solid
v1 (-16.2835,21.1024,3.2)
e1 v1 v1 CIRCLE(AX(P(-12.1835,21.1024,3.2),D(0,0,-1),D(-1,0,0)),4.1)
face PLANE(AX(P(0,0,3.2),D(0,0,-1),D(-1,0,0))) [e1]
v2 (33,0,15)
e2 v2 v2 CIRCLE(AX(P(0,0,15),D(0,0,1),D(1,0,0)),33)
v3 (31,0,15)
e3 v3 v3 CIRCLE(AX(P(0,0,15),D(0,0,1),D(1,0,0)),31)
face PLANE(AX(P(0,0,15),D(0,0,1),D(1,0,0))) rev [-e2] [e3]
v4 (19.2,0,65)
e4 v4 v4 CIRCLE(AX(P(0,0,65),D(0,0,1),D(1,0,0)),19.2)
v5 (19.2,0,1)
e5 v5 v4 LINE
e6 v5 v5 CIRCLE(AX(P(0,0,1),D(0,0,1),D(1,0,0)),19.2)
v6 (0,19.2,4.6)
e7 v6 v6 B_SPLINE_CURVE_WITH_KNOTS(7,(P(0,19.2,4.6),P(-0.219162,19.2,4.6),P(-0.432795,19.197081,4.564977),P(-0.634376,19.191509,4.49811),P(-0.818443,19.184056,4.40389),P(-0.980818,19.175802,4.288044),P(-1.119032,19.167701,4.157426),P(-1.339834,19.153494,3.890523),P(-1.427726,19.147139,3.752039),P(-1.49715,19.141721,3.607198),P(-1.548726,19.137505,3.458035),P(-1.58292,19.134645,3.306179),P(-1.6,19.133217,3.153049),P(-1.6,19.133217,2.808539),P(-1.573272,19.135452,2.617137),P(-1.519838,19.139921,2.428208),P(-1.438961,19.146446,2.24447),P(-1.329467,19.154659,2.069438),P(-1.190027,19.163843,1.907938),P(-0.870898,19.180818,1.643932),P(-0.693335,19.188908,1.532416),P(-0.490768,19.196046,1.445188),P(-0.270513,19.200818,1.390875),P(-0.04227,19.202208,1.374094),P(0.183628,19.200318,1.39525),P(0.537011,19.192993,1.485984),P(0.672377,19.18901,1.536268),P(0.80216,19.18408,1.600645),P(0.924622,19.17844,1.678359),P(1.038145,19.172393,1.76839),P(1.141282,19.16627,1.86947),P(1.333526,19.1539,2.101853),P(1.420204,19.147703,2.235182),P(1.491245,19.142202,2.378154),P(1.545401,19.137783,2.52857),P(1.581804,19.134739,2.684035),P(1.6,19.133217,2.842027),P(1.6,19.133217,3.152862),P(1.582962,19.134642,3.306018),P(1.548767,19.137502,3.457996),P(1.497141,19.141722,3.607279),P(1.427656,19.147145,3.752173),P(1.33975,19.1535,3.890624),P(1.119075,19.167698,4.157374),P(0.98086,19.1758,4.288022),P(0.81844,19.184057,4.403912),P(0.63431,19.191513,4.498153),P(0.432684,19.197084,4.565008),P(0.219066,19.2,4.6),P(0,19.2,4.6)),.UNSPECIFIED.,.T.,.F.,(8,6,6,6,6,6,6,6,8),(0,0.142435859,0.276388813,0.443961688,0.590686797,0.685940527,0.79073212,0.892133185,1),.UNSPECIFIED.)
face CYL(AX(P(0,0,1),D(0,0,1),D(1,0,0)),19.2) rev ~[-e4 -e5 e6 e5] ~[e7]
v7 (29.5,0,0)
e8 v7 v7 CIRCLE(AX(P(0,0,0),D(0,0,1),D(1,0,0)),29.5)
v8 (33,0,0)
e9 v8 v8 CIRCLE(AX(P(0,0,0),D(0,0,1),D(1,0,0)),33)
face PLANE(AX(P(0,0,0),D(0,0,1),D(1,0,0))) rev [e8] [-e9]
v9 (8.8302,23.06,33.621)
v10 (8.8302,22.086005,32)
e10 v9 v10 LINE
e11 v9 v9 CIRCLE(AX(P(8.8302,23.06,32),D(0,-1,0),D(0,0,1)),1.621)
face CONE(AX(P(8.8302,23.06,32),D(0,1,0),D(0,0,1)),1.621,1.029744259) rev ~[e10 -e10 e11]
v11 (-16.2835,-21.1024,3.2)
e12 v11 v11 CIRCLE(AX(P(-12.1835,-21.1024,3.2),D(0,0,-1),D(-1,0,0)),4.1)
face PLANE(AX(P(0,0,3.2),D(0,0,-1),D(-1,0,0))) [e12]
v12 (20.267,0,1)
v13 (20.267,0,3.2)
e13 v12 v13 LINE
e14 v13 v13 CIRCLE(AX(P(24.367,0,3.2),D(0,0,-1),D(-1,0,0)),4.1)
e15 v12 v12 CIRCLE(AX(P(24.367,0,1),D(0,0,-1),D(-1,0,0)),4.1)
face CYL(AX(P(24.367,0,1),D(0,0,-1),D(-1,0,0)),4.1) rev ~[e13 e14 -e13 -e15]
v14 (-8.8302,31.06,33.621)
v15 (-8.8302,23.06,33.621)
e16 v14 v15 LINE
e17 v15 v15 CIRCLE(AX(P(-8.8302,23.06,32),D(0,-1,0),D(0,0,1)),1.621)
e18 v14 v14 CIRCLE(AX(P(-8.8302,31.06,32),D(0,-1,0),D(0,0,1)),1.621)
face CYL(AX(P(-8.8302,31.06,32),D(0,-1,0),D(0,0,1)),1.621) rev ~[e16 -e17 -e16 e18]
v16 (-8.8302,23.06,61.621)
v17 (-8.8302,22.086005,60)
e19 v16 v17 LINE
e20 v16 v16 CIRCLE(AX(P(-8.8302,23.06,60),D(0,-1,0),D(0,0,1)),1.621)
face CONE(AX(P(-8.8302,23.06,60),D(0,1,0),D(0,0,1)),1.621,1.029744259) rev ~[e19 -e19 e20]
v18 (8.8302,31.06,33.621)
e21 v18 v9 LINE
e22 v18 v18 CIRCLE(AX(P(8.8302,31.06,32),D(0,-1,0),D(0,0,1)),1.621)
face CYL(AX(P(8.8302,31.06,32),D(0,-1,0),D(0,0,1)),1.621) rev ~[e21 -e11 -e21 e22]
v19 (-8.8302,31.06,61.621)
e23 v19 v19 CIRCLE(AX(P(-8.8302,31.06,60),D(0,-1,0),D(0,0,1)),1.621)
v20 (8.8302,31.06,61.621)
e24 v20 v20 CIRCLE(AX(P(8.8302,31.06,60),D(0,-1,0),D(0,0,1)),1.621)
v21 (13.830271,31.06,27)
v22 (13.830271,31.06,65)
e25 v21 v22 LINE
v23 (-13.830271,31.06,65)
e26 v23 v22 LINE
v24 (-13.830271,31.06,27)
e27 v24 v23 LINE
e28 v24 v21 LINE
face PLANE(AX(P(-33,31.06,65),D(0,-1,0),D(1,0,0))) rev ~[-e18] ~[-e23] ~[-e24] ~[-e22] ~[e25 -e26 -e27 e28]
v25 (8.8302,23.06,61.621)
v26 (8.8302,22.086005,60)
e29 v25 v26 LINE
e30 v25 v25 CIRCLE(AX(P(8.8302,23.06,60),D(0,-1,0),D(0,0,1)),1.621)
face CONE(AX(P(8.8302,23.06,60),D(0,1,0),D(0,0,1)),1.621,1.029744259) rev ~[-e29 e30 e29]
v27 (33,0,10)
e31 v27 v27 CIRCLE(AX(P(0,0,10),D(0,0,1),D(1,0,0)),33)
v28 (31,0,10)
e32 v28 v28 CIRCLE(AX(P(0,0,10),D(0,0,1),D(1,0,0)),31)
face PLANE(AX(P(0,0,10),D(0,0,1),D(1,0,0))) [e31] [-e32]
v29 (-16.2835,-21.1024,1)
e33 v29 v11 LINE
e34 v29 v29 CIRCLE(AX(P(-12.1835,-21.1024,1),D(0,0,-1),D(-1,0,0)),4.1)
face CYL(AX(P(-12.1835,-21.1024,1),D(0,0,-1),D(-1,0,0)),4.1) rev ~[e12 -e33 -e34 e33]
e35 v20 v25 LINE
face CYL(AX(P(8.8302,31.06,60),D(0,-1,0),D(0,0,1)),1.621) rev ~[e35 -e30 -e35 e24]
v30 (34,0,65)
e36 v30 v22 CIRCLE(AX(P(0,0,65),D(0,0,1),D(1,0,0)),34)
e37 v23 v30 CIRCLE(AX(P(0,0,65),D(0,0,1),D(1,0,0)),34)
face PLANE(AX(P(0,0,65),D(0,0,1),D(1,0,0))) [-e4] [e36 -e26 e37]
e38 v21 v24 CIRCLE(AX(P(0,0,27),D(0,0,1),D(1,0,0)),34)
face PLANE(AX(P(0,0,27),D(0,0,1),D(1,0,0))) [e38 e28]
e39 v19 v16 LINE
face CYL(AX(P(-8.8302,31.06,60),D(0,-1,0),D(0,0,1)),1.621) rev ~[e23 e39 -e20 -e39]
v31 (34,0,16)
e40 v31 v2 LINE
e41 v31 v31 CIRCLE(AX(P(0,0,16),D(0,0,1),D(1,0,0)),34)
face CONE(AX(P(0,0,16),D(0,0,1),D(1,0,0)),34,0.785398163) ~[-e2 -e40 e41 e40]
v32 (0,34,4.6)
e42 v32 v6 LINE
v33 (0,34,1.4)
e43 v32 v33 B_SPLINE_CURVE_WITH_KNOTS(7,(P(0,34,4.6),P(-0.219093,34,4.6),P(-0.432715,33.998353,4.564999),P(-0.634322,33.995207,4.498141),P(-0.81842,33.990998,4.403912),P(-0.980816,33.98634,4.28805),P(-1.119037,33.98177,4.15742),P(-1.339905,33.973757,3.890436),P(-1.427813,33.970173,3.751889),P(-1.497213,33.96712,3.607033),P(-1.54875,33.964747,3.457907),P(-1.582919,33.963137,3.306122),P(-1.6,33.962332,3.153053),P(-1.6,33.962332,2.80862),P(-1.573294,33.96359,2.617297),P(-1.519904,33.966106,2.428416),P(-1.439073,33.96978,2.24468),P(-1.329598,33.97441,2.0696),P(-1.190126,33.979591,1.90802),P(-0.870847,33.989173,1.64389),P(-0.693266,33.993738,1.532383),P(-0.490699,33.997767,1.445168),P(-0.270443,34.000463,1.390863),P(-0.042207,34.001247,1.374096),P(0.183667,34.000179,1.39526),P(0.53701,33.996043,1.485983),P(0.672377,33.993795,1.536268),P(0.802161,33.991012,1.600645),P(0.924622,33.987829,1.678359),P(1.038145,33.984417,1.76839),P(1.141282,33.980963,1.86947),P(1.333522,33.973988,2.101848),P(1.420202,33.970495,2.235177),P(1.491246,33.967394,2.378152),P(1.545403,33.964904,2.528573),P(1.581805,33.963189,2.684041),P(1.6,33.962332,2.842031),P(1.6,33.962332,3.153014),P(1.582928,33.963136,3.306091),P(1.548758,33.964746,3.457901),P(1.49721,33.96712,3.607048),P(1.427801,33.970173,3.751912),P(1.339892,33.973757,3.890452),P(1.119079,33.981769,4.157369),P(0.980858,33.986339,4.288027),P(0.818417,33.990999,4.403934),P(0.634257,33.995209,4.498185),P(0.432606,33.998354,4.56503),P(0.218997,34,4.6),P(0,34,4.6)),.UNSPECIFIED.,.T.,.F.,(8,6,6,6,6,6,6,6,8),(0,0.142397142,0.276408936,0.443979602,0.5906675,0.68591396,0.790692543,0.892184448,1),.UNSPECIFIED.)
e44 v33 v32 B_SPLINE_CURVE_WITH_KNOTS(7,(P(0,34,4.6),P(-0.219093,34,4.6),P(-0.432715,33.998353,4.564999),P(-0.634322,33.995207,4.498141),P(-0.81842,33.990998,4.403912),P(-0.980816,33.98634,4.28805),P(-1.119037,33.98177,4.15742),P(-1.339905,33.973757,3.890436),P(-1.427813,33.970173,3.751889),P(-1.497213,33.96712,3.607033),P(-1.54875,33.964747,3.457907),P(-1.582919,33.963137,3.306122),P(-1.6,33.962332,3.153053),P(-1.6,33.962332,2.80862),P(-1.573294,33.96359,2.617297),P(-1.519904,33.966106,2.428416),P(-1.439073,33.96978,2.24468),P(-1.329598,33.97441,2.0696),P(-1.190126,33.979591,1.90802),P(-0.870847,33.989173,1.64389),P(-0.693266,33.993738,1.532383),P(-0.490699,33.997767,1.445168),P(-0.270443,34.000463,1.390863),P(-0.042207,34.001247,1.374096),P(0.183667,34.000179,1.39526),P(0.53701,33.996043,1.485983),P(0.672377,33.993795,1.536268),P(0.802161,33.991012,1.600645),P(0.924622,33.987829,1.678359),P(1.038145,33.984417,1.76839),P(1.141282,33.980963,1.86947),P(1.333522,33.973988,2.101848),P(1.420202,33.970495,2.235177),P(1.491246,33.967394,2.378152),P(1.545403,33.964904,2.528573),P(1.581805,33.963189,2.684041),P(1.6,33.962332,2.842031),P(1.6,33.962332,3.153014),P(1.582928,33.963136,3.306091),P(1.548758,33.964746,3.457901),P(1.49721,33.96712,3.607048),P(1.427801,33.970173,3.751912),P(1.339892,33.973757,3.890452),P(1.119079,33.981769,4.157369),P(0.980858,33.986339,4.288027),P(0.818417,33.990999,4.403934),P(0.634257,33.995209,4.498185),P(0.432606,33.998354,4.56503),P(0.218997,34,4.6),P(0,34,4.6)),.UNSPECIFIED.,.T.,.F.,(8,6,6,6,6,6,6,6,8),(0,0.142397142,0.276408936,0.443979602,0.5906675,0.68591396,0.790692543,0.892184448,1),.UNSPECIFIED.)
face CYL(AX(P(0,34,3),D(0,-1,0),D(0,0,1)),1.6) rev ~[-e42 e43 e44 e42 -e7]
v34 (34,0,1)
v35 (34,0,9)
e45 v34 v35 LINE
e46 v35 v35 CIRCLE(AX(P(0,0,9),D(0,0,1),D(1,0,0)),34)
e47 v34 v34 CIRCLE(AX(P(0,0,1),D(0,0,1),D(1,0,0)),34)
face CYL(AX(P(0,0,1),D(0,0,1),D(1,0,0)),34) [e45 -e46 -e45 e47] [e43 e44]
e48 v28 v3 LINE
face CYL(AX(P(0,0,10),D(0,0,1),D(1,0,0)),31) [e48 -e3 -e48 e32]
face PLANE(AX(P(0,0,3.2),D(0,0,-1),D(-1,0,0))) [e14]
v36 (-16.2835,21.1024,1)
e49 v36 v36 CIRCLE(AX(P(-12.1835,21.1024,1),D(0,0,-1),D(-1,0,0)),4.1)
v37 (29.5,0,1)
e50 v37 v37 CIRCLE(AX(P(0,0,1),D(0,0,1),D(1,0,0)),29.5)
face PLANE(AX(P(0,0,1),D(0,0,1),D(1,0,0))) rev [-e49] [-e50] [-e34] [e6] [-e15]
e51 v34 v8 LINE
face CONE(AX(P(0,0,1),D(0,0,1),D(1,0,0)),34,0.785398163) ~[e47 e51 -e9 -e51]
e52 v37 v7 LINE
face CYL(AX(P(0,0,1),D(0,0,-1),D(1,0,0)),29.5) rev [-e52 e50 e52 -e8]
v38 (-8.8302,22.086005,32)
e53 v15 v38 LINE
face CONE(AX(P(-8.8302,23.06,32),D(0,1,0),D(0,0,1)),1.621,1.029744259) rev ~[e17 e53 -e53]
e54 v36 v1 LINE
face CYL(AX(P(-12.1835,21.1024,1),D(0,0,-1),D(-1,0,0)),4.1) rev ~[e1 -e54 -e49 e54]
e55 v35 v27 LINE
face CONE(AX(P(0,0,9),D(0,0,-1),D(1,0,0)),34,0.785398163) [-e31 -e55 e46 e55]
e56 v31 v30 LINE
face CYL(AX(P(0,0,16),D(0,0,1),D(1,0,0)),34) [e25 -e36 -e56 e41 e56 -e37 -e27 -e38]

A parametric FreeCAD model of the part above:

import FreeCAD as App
import Part
import Sketcher
Q = App.Units.Quantity

doc = App.newDocument("Part")
body = doc.addObject("PartDesign::Body", "Body")

# Sketch on XZ plane
sketch1 = body.newObject("Sketcher::SketchObject", "Sketch")
sketch1.AttachmentSupport = (doc.getObject("XZ_Plane"), [""])
sketch1.MapMode = "FlatFace"
sketch1.addGeometry([
    Part.LineSegment(App.Vector(34, 9, 0), App.Vector(34, 1, 0)),  # 0
    Part.LineSegment(App.Vector(34, 1, 0), App.Vector(33, 0, 0)),  # 1
    Part.LineSegment(App.Vector(33, 0, 0), App.Vector(29.5, 0, 0)),  # 2
    Part.LineSegment(App.Vector(29.5, 0, 0), App.Vector(29.5, 1, 0)),  # 3
    Part.LineSegment(App.Vector(29.5, 1, 0), App.Vector(19.2, 1, 0)),  # 4
    Part.LineSegment(App.Vector(19.2, 1, 0), App.Vector(19.2, 65, 0)),  # 5
    Part.LineSegment(App.Vector(19.2, 65, 0), App.Vector(34, 65, 0)),  # 6
    Part.LineSegment(App.Vector(34, 65, 0), App.Vector(34, 16, 0)),  # 7
    Part.LineSegment(App.Vector(34, 16, 0), App.Vector(33, 15, 0)),  # 8
    Part.LineSegment(App.Vector(33, 15, 0), App.Vector(31, 15, 0)),  # 9
    Part.LineSegment(App.Vector(31, 15, 0), App.Vector(31, 10, 0)),  # 10
    Part.LineSegment(App.Vector(31, 10, 0), App.Vector(33, 10, 0)),  # 11
    Part.LineSegment(App.Vector(33, 10, 0), App.Vector(34, 9, 0)),  # 12
], False)
sketch1.addConstraint([
    Sketcher.Constraint("Coincident", 0, 2, 1, 1),
    Sketcher.Constraint("Coincident", 1, 2, 2, 1),
    Sketcher.Constraint("Coincident", 2, 2, 3, 1),
    Sketcher.Constraint("Coincident", 3, 2, 4, 1),
    Sketcher.Constraint("Coincident", 4, 2, 5, 1),
    Sketcher.Constraint("Coincident", 5, 2, 6, 1),
    Sketcher.Constraint("Coincident", 6, 2, 7, 1),
    Sketcher.Constraint("Coincident", 7, 2, 8, 1),
    Sketcher.Constraint("Coincident", 8, 2, 9, 1),
    Sketcher.Constraint("Coincident", 9, 2, 10, 1),
    Sketcher.Constraint("Coincident", 10, 2, 11, 1),
    Sketcher.Constraint("Coincident", 11, 2, 12, 1),
    Sketcher.Constraint("Coincident", 12, 2, 0, 1),
    Sketcher.Constraint("Vertical", 0),
    Sketcher.Constraint("Horizontal", 2),
    Sketcher.Constraint("Vertical", 3),
    Sketcher.Constraint("Horizontal", 4),
    Sketcher.Constraint("Vertical", 5),
    Sketcher.Constraint("Horizontal", 6),
    Sketcher.Constraint("Vertical", 7),
    Sketcher.Constraint("Horizontal", 9),
    Sketcher.Constraint("Vertical", 10),
    Sketcher.Constraint("Horizontal", 11),
    Sketcher.Constraint("PointOnObject", 1, 2, -1),
    Sketcher.Constraint("Parallel", 1, 8),
    Sketcher.Constraint("Perpendicular", 8, 12),
    Sketcher.Constraint("Horizontal", 0, 2, 3, 2),
    Sketcher.Constraint("Vertical", 0, 2, 6, 2),
    Sketcher.Constraint("Vertical", 1, 2, 8, 2),
    Sketcher.Constraint("Vertical", 8, 2, 11, 2),
    Sketcher.Constraint("Equal", 8, 12),
    Sketcher.Constraint("DistanceY", 3, 1, 3, 2, Q("1 mm")),
    Sketcher.Constraint("DistanceY", 10, 2, 10, 1, Q("5 mm")),
    Sketcher.Constraint("DistanceX", 4, 2, 4, 1, Q("10.3 mm")),
    Sketcher.Constraint("DistanceX", 6, 1, 6, 2, Q("14.8 mm")),
    Sketcher.Constraint("DistanceY", -1, 1, 10, 2, Q("10 mm")),
    Sketcher.Constraint("DistanceX", 9, 2, 7, 2, Q("3 mm")),
    Sketcher.Constraint("DistanceX", -1, 1, 4, 2, Q("19.2 mm")),
    Sketcher.Constraint("DistanceY", 5, 1, 5, 2, Q("64 mm")),
])
revolution = body.newObject("PartDesign::Revolution", "Revolution")
revolution.Profile = sketch1
revolution.ReferenceAxis = (sketch1, ["V_Axis"])
revolution.Angle = 360

# Sketch on XY plane
sketch2 = body.newObject("Sketcher::SketchObject", "Sketch001")
sketch2.AttachmentSupport = (doc.getObject("XY_Plane"), [""])
sketch2.MapMode = "FlatFace"
sketch2.AttachmentOffset = App.Placement(App.Vector(0, 0, 65), App.Rotation())
sketch2.addGeometry([
    Part.LineSegment(App.Vector(-33, 31, 0), App.Vector(33, 31, 0)),
    Part.LineSegment(App.Vector(33, 31, 0), App.Vector(33, 45, 0)),
    Part.LineSegment(App.Vector(33, 45, 0), App.Vector(-33, 45, 0)),
    Part.LineSegment(App.Vector(-33, 45, 0), App.Vector(-33, 31, 0)),
], False)
sketch2.addConstraint([
    Sketcher.Constraint("Coincident", 0, 2, 1, 1),
    Sketcher.Constraint("Coincident", 1, 2, 2, 1),
    Sketcher.Constraint("Coincident", 2, 2, 3, 1),
    Sketcher.Constraint("Coincident", 3, 2, 0, 1),
    Sketcher.Constraint("Horizontal", 0),
    Sketcher.Constraint("Vertical", 1),
    Sketcher.Constraint("Horizontal", 2),
    Sketcher.Constraint("Vertical", 3),
    Sketcher.Constraint("DistanceX", 0, 1, 0, 2, Q("66 mm")),
    Sketcher.Constraint("DistanceX", -1, 1, 0, 2, Q("33 mm")),
    Sketcher.Constraint("DistanceY", -1, 1, 0, 2, Q("31.06 mm")),
    Sketcher.Constraint("DistanceY", 1, 1, 1, 2, Q("13.8563 mm")),
])
pocket1 = body.newObject("PartDesign::Pocket", "Pocket")
pocket1.Profile = sketch2
pocket1.Length = 38

# Sketch on XZ plane
sketch3 = body.newObject("Sketcher::SketchObject", "Sketch002")
sketch3.AttachmentSupport = (doc.getObject("XZ_Plane"), [""])
sketch3.MapMode = "FlatFace"
sketch3.AttachmentOffset = App.Placement(App.Vector(0, 0, -31.06), App.Rotation())
sketch3.addGeometry([
    Part.Circle(App.Vector(8.8, 60, 0), App.Vector(0, 0, 1), 1.6),
    Part.Circle(App.Vector(8.8, 32, 0), App.Vector(0, 0, 1), 1.6),
    Part.Circle(App.Vector(-8.8, 32, 0), App.Vector(0, 0, 1), 1.6),
    Part.Circle(App.Vector(-8.8, 60, 0), App.Vector(0, 0, 1), 1.6),
], False)
sketch3.addConstraint([
    Sketcher.Constraint("Equal", 0, 1),
    Sketcher.Constraint("Equal", 1, 2),
    Sketcher.Constraint("Equal", 2, 3),
    Sketcher.Constraint("Symmetric", 1, 3, 2, 3, -2),
    Sketcher.Constraint("Symmetric", 0, 3, 3, 3, -2),
    Sketcher.Constraint("Vertical", 0, 3, 1, 3),
    Sketcher.Constraint("Diameter", 0, Q("3.242 mm")),
    Sketcher.Constraint("DistanceY", -1, 1, 0, 3, Q("60 mm")),
    Sketcher.Constraint("DistanceY", -1, 1, 1, 3, Q("32 mm")),
    Sketcher.Constraint("DistanceX", -1, 1, 0, 3, Q("8.8302 mm")),
])
doc.recompute()
hole = body.newObject("PartDesign::Hole", "Hole")
hole.Profile = sketch3
hole.ThreadType = "None"
hole.Diameter = 3.242
hole.DepthType = "Dimension"
hole.Depth = 8
hole.DrillPoint = "Angled"
hole.DrillPointAngle = 118
hole.Reversed = True

# Sketch on XY plane
sketch4 = body.newObject("Sketcher::SketchObject", "Sketch003")
sketch4.AttachmentSupport = (doc.getObject("XY_Plane"), [""])
sketch4.MapMode = "FlatFace"
sketch4.AttachmentOffset = App.Placement(App.Vector(0, 0, 1), App.Rotation())
sketch4.addGeometry([
    Part.Circle(App.Vector(24.4, 0, 0), App.Vector(0, 0, 1), 4.1),
    Part.Circle(App.Vector(-12.2, -21.1, 0), App.Vector(0, 0, 1), 4.1),
    Part.Circle(App.Vector(-12.2, 21.1, 0), App.Vector(0, 0, 1), 4.1),
], False)
sketch4.addConstraint([
    Sketcher.Constraint("Equal", 0, 1),
    Sketcher.Constraint("Equal", 1, 2),
    Sketcher.Constraint("Symmetric", 1, 3, 2, 3, -1),
    Sketcher.Constraint("PointOnObject", 0, 3, -1),
    Sketcher.Constraint("Diameter", 0, Q("8.2 mm")),
    Sketcher.Constraint("DistanceX", -1, 1, 0, 3, Q("24.367 mm")),
    Sketcher.Constraint("DistanceX", 1, 3, -1, 1, Q("12.1835 mm")),
    Sketcher.Constraint("DistanceY", 1, 3, -1, 1, Q("21.1024 mm")),
])
pocket2 = body.newObject("PartDesign::Pocket", "Pocket001")
pocket2.Profile = sketch4
pocket2.Length = 2.2
pocket2.Reversed = True

# Sketch on XZ plane
sketch5 = body.newObject("Sketcher::SketchObject", "Sketch004")
sketch5.AttachmentSupport = (doc.getObject("XZ_Plane"), [""])
sketch5.MapMode = "FlatFace"
sketch5.AttachmentOffset = App.Placement(App.Vector(0, 0, -34), App.Rotation())
sketch5.addGeometry(Part.Circle(App.Vector(0, 3, 0), App.Vector(0, 0, 1), 1.6), False)
sketch5.addConstraint([
    Sketcher.Constraint("PointOnObject", 0, 3, -2),
    Sketcher.Constraint("Diameter", 0, Q("3.2 mm")),
    Sketcher.Constraint("DistanceY", -1, 1, 0, 3, Q("3 mm")),
])
doc.recompute()
hole2 = body.newObject("PartDesign::Hole", "Hole001")
hole2.Profile = sketch5
hole2.ThreadType = "None"
hole2.Diameter = 3.2
hole2.DepthType = "Dimension"
hole2.Depth = 17.2
hole2.DrillPoint = "Angled"
hole2.DrillPointAngle = 118
hole2.Reversed = True

doc.recompute()
